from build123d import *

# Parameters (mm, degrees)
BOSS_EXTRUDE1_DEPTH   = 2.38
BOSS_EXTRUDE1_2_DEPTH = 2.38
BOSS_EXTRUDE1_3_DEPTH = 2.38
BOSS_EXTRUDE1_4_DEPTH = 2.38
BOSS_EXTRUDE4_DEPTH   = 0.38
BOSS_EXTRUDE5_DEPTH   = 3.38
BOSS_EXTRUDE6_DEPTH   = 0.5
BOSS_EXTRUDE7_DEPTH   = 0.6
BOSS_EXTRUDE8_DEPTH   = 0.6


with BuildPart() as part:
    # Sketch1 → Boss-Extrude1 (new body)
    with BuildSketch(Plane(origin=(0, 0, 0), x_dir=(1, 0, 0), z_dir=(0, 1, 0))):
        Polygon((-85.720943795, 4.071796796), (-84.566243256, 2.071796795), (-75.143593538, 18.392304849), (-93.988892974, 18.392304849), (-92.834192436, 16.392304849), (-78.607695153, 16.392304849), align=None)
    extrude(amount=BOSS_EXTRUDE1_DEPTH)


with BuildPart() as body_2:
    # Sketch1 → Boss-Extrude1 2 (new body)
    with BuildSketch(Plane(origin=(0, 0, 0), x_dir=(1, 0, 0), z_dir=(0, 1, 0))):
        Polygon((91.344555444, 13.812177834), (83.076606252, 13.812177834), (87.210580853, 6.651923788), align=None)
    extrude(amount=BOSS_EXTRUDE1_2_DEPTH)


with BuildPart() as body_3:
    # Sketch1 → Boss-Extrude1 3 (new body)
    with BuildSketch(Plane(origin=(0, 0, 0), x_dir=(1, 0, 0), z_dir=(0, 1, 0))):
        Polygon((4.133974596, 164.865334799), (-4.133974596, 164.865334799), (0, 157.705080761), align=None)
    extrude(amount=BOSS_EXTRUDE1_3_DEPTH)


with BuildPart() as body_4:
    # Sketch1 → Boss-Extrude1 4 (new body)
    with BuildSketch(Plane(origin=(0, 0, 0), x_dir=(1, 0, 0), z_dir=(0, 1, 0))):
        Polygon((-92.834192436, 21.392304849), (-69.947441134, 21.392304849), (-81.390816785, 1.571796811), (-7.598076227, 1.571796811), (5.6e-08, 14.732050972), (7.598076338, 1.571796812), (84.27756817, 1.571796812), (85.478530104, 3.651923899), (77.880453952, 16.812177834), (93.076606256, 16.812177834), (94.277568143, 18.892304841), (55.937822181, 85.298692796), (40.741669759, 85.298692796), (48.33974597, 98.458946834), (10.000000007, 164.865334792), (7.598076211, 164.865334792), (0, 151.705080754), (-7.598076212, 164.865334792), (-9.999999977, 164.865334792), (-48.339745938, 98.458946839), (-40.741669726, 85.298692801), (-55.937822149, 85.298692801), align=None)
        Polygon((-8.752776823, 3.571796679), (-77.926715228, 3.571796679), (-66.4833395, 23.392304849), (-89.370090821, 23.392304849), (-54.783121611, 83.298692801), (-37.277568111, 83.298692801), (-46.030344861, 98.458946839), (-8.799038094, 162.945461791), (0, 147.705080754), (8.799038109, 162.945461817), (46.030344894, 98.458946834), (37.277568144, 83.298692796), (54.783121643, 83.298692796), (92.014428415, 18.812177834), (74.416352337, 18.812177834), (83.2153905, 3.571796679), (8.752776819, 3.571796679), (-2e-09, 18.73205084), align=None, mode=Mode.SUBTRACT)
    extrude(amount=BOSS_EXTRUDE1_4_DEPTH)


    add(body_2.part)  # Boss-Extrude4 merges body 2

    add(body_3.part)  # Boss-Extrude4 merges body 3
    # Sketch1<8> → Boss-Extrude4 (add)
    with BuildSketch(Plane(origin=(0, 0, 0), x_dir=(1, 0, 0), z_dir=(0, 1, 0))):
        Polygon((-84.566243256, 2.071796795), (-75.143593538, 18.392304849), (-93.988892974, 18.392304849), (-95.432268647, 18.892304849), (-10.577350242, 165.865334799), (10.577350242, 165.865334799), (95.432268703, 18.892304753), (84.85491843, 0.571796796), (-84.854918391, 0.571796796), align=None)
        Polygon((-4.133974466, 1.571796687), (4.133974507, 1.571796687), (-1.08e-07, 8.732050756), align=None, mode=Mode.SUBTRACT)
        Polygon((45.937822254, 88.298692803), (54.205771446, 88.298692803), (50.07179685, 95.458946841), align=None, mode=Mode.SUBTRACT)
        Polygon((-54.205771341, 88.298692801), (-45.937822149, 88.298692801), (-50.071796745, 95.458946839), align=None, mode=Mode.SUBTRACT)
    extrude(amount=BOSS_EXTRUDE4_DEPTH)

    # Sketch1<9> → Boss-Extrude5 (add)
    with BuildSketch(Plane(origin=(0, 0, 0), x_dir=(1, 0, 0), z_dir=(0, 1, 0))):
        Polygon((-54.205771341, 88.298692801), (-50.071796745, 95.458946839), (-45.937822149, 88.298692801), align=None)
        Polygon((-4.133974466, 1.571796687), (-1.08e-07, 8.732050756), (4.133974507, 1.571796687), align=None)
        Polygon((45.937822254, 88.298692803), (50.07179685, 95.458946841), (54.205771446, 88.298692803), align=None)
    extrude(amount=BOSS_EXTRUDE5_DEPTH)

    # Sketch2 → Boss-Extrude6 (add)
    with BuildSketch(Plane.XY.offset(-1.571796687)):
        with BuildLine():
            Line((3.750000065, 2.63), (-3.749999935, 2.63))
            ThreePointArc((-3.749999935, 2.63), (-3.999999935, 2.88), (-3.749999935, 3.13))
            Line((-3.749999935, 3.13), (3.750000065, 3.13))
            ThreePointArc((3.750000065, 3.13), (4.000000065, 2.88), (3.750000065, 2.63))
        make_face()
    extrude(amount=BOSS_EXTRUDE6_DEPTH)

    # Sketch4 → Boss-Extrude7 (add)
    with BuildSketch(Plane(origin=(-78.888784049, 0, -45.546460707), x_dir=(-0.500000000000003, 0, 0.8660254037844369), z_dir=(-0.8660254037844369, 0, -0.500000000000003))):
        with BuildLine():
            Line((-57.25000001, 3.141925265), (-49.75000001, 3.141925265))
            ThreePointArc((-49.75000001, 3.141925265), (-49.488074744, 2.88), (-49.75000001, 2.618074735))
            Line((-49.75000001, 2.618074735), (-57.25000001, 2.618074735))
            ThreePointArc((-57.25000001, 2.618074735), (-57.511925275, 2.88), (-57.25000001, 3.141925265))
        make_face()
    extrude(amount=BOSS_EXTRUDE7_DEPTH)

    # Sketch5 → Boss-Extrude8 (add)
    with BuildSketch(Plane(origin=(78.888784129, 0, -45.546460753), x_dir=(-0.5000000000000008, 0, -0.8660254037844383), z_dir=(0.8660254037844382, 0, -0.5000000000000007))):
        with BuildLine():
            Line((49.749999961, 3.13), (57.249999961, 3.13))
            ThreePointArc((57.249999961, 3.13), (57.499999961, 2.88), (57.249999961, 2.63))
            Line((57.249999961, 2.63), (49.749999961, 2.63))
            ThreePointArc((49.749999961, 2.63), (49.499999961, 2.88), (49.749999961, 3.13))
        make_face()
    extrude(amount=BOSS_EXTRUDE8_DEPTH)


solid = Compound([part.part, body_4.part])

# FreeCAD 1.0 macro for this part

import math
import FreeCAD as App
import Part
import Sketcher
Q = App.Units.Quantity


def add_polygon(sketch, points):
    """Adds a closed chain of lines whose ends are joined by coincident constraints."""
    first, n = sketch.GeometryCount, len(points)
    for a, b in zip(points, points[1:] + points[:1]):
        sketch.addGeometry(Part.LineSegment(App.Vector(*a, 0), App.Vector(*b, 0)), False)
    for i in range(n):
        sketch.addConstraint(Sketcher.Constraint("Coincident", first + i, 2, first + (i + 1) % n, 1))

doc = App.newDocument("Part")
params = doc.addObject("Spreadsheet::Sheet", "Params")
for row, (alias, value) in enumerate([
    ("pad1_length", "2.38 mm"),
    ("pad2_length", "2.38 mm"),
    ("pad3_length", "2.38 mm"),
    ("pad4_length", "2.38 mm"),
    ("pad5_length", "0.38 mm"),
    ("pad6_length", "3.38 mm"),
    ("sketch7_radius", "0.25 mm"),
    ("sketch7_width", "7.5 mm"),
    ("pad7_length", "0.5 mm"),
    ("sketch8_width", "7.5 mm"),
    ("pad8_length", "0.6 mm"),
    ("sketch9_radius", "0.25 mm"),
    ("sketch9_width", "7.5 mm"),
    ("pad9_length", "0.6 mm"),
], start=1):
    params.set(f"A{row}", alias)
    params.set(f"B{row}", "=" + value)
    params.setAlias(f"B{row}", alias)

body = doc.addObject("PartDesign::Body", "Body")

# Sketch on XZ plane
sketch1 = body.newObject("Sketcher::SketchObject", "Sketch")
sketch1.AttachmentSupport = (doc.getObject("XZ_Plane"), [""])
sketch1.MapMode = "FlatFace"
add_polygon(sketch1, [(-85.720944, -4.071797), (-84.566243, -2.071797), (-75.143594, -18.392305), (-93.988893, -18.392305), (-92.834192, -16.392305), (-78.607695, -16.392305)])  # lines 0-5
sketch1.addConstraint(Sketcher.Constraint("Horizontal", 2))
sketch1.addConstraint(Sketcher.Constraint("Horizontal", 4))
sketch1.addConstraint(Sketcher.Constraint("Parallel", 0, 3))
sketch1.addConstraint(Sketcher.Constraint("Parallel", 1, 5))
sketch1.addConstraint(Sketcher.Constraint("Equal", 0, 3))
sketch1.addConstraint(Sketcher.Constraint("Angle", 0, Q("60 deg")))
sketch1.addConstraint(Sketcher.Constraint("Angle", 1, Q("-60 deg")))
sketch1.addConstraint(Sketcher.Constraint("DistanceY", 2, 2, 3, 2, Q("2 mm")))
sketch1.addConstraint(Sketcher.Constraint("DistanceX", 2, 2, 2, 1, Q("18.845299 mm")))
sketch1.addConstraint(Sketcher.Constraint("Distance", 1, Q("18.845299 mm")))
sketch1.addConstraint(Sketcher.Constraint("DistanceX", 0, 2, -1, 1, Q("84.566243 mm")))
sketch1.addConstraint(Sketcher.Constraint("DistanceY", 0, 2, -1, 1, Q("2.071797 mm")))
pad1 = body.newObject("PartDesign::Pad", "Pad")
pad1.Profile = sketch1
pad1.setExpression("Length", "Params.pad1_length")
pad1.Reversed = True
body2 = doc.addObject("PartDesign::Body", "Body001")

# Sketch on XZ plane
sketch2 = body2.newObject("Sketcher::SketchObject", "Sketch001")
sketch2.AttachmentSupport = (doc.getObject("XZ_Plane001"), [""])
sketch2.MapMode = "FlatFace"
add_polygon(sketch2, [(91.344555, -13.812178), (83.076606, -13.812178), (87.210581, -6.651924)])  # lines 0-2
sketch2.addConstraint(Sketcher.Constraint("Horizontal", 0))
sketch2.addConstraint(Sketcher.Constraint("Equal", 1, 2))
sketch2.addConstraint(Sketcher.Constraint("Angle", 1, Q("60 deg")))
sketch2.addConstraint(Sketcher.Constraint("DistanceX", 0, 2, 0, 1, Q("8.267949 mm")))
sketch2.addConstraint(Sketcher.Constraint("DistanceX", -1, 1, 1, 2, Q("87.210581 mm")))
sketch2.addConstraint(Sketcher.Constraint("DistanceY", 0, 2, -1, 1, Q("13.812178 mm")))
pad2 = body2.newObject("PartDesign::Pad", "Pad001")
pad2.Profile = sketch2
pad2.setExpression("Length", "Params.pad2_length")
pad2.Reversed = True
body3 = doc.addObject("PartDesign::Body", "Body002")

# Sketch on XZ plane
sketch3 = body3.newObject("Sketcher::SketchObject", "Sketch002")
sketch3.AttachmentSupport = (doc.getObject("XZ_Plane002"), [""])
sketch3.MapMode = "FlatFace"
add_polygon(sketch3, [(4.133975, -164.865335), (-4.133975, -164.865335), (0, -157.705081)])  # lines 0-2
sketch3.addConstraint(Sketcher.Constraint("Horizontal", 0))
sketch3.addConstraint(Sketcher.Constraint("PointOnObject", 1, 2, -2))
sketch3.addConstraint(Sketcher.Constraint("Equal", 1, 2))
sketch3.addConstraint(Sketcher.Constraint("Angle", 1, Q("60 deg")))
sketch3.addConstraint(Sketcher.Constraint("DistanceX", 0, 2, 0, 1, Q("8.267949 mm")))
sketch3.addConstraint(Sketcher.Constraint("DistanceY", 1, 2, -1, 1, Q("157.705081 mm")))
pad3 = body3.newObject("PartDesign::Pad", "Pad002")
pad3.Profile = sketch3
pad3.setExpression("Length", "Params.pad3_length")
pad3.Reversed = True
body4 = doc.addObject("PartDesign::Body", "Body003")
body4.AllowCompound = True

# Sketch on XZ plane
sketch4 = body4.newObject("Sketcher::SketchObject", "Sketch003")
sketch4.AttachmentSupport = (doc.getObject("XZ_Plane003"), [""])
sketch4.MapMode = "FlatFace"
add_polygon(sketch4, [(-92.834192, -21.392305), (-69.947441, -21.392305), (-81.390817, -1.571797), (-7.598076, -1.571797), (0, -14.732051), (7.598076, -1.571797), (84.277568, -1.571797), (85.47853, -3.651924), (77.880454, -16.812178), (93.076606, -16.812178), (94.277568, -18.892305), (55.937822, -85.298693), (40.74167, -85.298693), (48.339746, -98.458947), (10, -164.865335), (7.598076, -164.865335), (0, -151.705081), (-7.598076, -164.865335), (-10, -164.865335), (-48.339746, -98.458947), (-40.74167, -85.298693), (-55.937822, -85.298693)])  # lines 0-21
add_polygon(sketch4, [(0, -18.732051), (-8.752777, -3.571797), (-77.926715, -3.571797), (-66.483339, -23.392305), (-89.370091, -23.392305), (-54.783122, -83.298693), (-37.277568, -83.298693), (-46.030345, -98.458947), (-8.799038, -162.945462), (0, -147.705081), (8.799038, -162.945462), (46.030345, -98.458947), (37.277568, -83.298693), (54.783122, -83.298693), (92.014428, -18.812178), (74.416352, -18.812178), (83.21539, -3.571797), (8.752777, -3.571797)])  # lines 22-39
sketch4.addConstraint(Sketcher.Constraint("Horizontal", 0))
sketch4.addConstraint(Sketcher.Constraint("Horizontal", 2))
sketch4.addConstraint(Sketcher.Constraint("Horizontal", 5))
sketch4.addConstraint(Sketcher.Constraint("Horizontal", 8))
sketch4.addConstraint(Sketcher.Constraint("Horizontal", 11))
sketch4.addConstraint(Sketcher.Constraint("Horizontal", 14))
sketch4.addConstraint(Sketcher.Constraint("Horizontal", 17))
sketch4.addConstraint(Sketcher.Constraint("Horizontal", 20))
sketch4.addConstraint(Sketcher.Constraint("Horizontal", 23))
sketch4.addConstraint(Sketcher.Constraint("Horizontal", 25))
sketch4.addConstraint(Sketcher.Constraint("Horizontal", 27))
sketch4.addConstraint(Sketcher.Constraint("Horizontal", 34))
sketch4.addConstraint(Sketcher.Constraint("Horizontal", 36))
sketch4.addConstraint(Sketcher.Constraint("Horizontal", 38))
sketch4.addConstraint(Sketcher.Constraint("Symmetric", 2, 2, 4, 2, -2))
sketch4.addConstraint(Sketcher.Constraint("Symmetric", 14, 2, 16, 2, -2))
sketch4.addConstraint(Sketcher.Constraint("Symmetric", 12, 2, 18, 2, -2))
sketch4.addConstraint(Sketcher.Constraint("Symmetric", 11, 2, 19, 2, -2))
sketch4.addConstraint(Sketcher.Constraint("Symmetric", 29, 2, 31, 2, -2))
sketch4.addConstraint(Sketcher.Constraint("Symmetric", 28, 2, 32, 2, -2))
sketch4.addConstraint(Sketcher.Constraint("Symmetric", 27, 2, 33, 2, -2))
sketch4.addConstraint(Sketcher.Constraint("Symmetric", 22, 2, 38, 2, -2))
sketch4.addConstraint(Sketcher.Constraint("PointOnObject", 3, 2, -2))
sketch4.addConstraint(Sketcher.Constraint("PointOnObject", 15, 2, -2))
sketch4.addConstraint(Sketcher.Constraint("PointOnObject", 30, 2, -2))
sketch4.addConstraint(Sketcher.Constraint("PointOnObject", 39, 2, -2))
sketch4.addConstraint(Sketcher.Constraint("Parallel", 1, 3))
sketch4.addConstraint(Sketcher.Constraint("Parallel", 3, 6))
sketch4.addConstraint(Sketcher.Constraint("Parallel", 4, 7))
sketch4.addConstraint(Sketcher.Constraint("Parallel", 6, 9))
sketch4.addConstraint(Sketcher.Constraint("Parallel", 7, 10))
sketch4.addConstraint(Sketcher.Constraint("Parallel", 9, 12))
sketch4.addConstraint(Sketcher.Constraint("Parallel", 10, 13))
sketch4.addConstraint(Sketcher.Constraint("Parallel", 12, 15))
sketch4.addConstraint(Sketcher.Constraint("Parallel", 15, 18))
sketch4.addConstraint(Sketcher.Constraint("Parallel", 18, 21))
sketch4.addConstraint(Sketcher.Constraint("Parallel", 21, 22))
sketch4.addConstraint(Sketcher.Constraint("Parallel", 22, 24))
sketch4.addConstraint(Sketcher.Constraint("Parallel", 24, 26))
sketch4.addConstraint(Sketcher.Constraint("Parallel", 19, 28))
sketch4.addConstraint(Sketcher.Constraint("Parallel", 26, 29))
sketch4.addConstraint(Sketcher.Constraint("Parallel", 28, 30))
sketch4.addConstraint(Sketcher.Constraint("Parallel", 32, 35))
sketch4.addConstraint(Sketcher.Constraint("Parallel", 35, 37))
sketch4.addConstraint(Sketcher.Constraint("Horizontal", 18, 2, 28, 2))
sketch4.addConstraint(Sketcher.Constraint("Vertical", 4, 2, 14, 2))
sketch4.addConstraint(Sketcher.Constraint("Equal", 8, 11))
sketch4.addConstraint(Sketcher.Constraint("Equal", 11, 20))
sketch4.addConstraint(Sketcher.Constraint("Equal", 0, 25))
sketch4.addConstraint(Sketcher.Constraint("Equal", 27, 34))
sketch4.addConstraint(Sketcher.Constraint("Equal", 4, 7))
sketch4.addConstraint(Sketcher.Constraint("Equal", 6, 9))
sketch4.addConstraint(Sketcher.Constraint("Equal", 7, 12))
sketch4.addConstraint(Sketcher.Constraint("Equal", 10, 13))
sketch4.addConstraint(Sketcher.Constraint("Equal", 1, 24))
sketch4.addConstraint(Sketcher.Constraint("Equal", 22, 28))
sketch4.addConstraint(Sketcher.Constraint("Equal", 32, 35))
sketch4.addConstraint(Sketcher.Constraint("Equal", 31, 37))
sketch4.addConstraint(Sketcher.Constraint("Angle", 1, Q("120 deg")))
sketch4.addConstraint(Sketcher.Constraint("DistanceX", -1, 1, 13, 2, Q("10 mm")))
sketch4.addConstraint(Sketcher.Constraint("DistanceX", 5, 2, 9, 2, Q("10 mm")))
sketch4.addConstraint(Sketcher.Constraint("DistanceY", 22, 2, 2, 2, Q("2 mm")))
sketch4.addConstraint(Sketcher.Constraint("DistanceY", 20, 2, 26, 2, Q("2 mm")))
sketch4.addConstraint(Sketcher.Constraint("DistanceY", 15, 2, 30, 2, Q("4 mm")))
sketch4.addConstraint(Sketcher.Constraint("DistanceX", 0, 1, 0, 2, Q("22.886751 mm")))
sketch4.addConstraint(Sketcher.Constraint("DistanceX", 2, 1, 2, 2, Q("73.792741 mm")))
sketch4.addConstraint(Sketcher.Constraint("DistanceX", 5, 1, 5, 2, Q("76.679492 mm")))
sketch4.addConstraint(Sketcher.Constraint("DistanceX", 23, 2, 23, 1, Q("69.173938 mm")))
sketch4.addConstraint(Sketcher.Constraint("DistanceX", 11, 2, 9, 2, Q("53.535898 mm")))
sketch4.addConstraint(Sketcher.Constraint("DistanceX", 36, 2, 7, 2, Q("3.464102 mm")))
sketch4.addConstraint(Sketcher.Constraint("Distance", 1, Q("22.886751 mm")))
sketch4.addConstraint(Sketcher.Constraint("DistanceY", 3, 2, -1, 1, Q("14.732051 mm")))
pad4 = body4.newObject("PartDesign::Pad", "Pad003")
pad4.Profile = sketch4
pad4.setExpression("Length", "Params.pad4_length")
pad4.Reversed = True
doc.recompute()

boolean = body4.newObject("PartDesign::Boolean", "Boolean")
boolean.Type = "Fuse"
boolean.addObjects([body2])
doc.recompute()

boolean2 = body4.newObject("PartDesign::Boolean", "Boolean001")
boolean2.Type = "Fuse"
boolean2.addObjects([body3])

# Sketch on XZ plane
sketch5 = body4.newObject("Sketcher::SketchObject", "Sketch004")
sketch5.AttachmentSupport = (doc.getObject("XZ_Plane003"), [""])
sketch5.MapMode = "FlatFace"
add_polygon(sketch5, [(-75.143594, -18.392305), (-84.566243, -2.071797), (-84.854918, -0.571797), (84.854918, -0.571797), (95.432269, -18.892305), (10.57735, -165.865335), (-10.57735, -165.865335), (-95.432269, -18.892305), (-93.988893, -18.392305)])  # lines 0-8
add_polygon(sketch5, [(-4.133974, -1.571797), (0, -8.732051), (4.133975, -1.571797)])  # lines 9-11
add_polygon(sketch5, [(45.937822, -88.298693), (50.071797, -95.458947), (54.205771, -88.298693)])  # lines 12-14
add_polygon(sketch5, [(-54.205771, -88.298693), (-50.071797, -95.458947), (-45.937822, -88.298693)])  # lines 15-17
sketch5.addConstraint(Sketcher.Constraint("Horizontal", 2))
sketch5.addConstraint(Sketcher.Constraint("Horizontal", 5))
sketch5.addConstraint(Sketcher.Constraint("Horizontal", 8))
sketch5.addConstraint(Sketcher.Constraint("Horizontal", 11))
sketch5.addConstraint(Sketcher.Constraint("Horizontal", 14))
sketch5.addConstraint(Sketcher.Constraint("Horizontal", 17))
sketch5.addConstraint(Sketcher.Constraint("Symmetric", 3, 2, 6, 2, -2))
sketch5.addConstraint(Sketcher.Constraint("Symmetric", 12, 2, 15, 2, -2))
sketch5.addConstraint(Sketcher.Constraint("Symmetric", 14, 2, 16, 2, -2))
sketch5.addConstraint(Sketcher.Constraint("PointOnObject", 9, 2, -2))
sketch5.addConstraint(Sketcher.Constraint("Parallel", 0, 3))
sketch5.addConstraint(Sketcher.Constraint("Parallel", 3, 6))
sketch5.addConstraint(Sketcher.Constraint("Parallel", 6, 9))
sketch5.addConstraint(Sketcher.Constraint("Parallel", 4, 10))
sketch5.addConstraint(Sketcher.Constraint("Parallel", 9, 12))
sketch5.addConstraint(Sketcher.Constraint("Parallel", 10, 13))
sketch5.addConstraint(Sketcher.Constraint("Parallel", 12, 15))
sketch5.addConstraint(Sketcher.Constraint("Parallel", 13, 16))
sketch5.addConstraint(Sketcher.Constraint("Equal", 11, 14))
sketch5.addConstraint(Sketcher.Constraint("Equal", 1, 7))
sketch5.addConstraint(Sketcher.Constraint("Angle", 0, Q("120 deg")))
sketch5.addConstraint(Sketcher.Constraint("DistanceY", 10, 2, 2, 2, Q("1 mm")))
sketch5.addConstraint(Sketcher.Constraint("DistanceY", 0, 2, 1, 2, Q("1.5 mm")))
sketch5.addConstraint(Sketcher.Constraint("DistanceY", 6, 2, 7, 2, Q("0.5 mm")))
sketch5.addConstraint(Sketcher.Constraint("DistanceX", 5, 2, 5, 1, Q("21.1547 mm")))
sketch5.addConstraint(Sketcher.Constraint("DistanceX", 8, 1, 8, 2, Q("18.845299 mm")))
sketch5.addConstraint(Sketcher.Constraint("Distance", 0, Q("18.845299 mm")))
sketch5.addConstraint(Sketcher.Constraint("DistanceX", 11, 2, 11, 1, Q("8.267949 mm")))
sketch5.addConstraint(Sketcher.Constraint("DistanceX", 2, 1, 2, 2, Q("169.709837 mm")))
sketch5.addConstraint(Sketcher.Constraint("DistanceX", 1, 2, -1, 1, Q("84.854918 mm")))
sketch5.addConstraint(Sketcher.Constraint("DistanceY", 9, 2, -1, 1, Q("8.732051 mm")))
sketch5.addConstraint(Sketcher.Constraint("DistanceX", -1, 1, 13, 2, Q("54.205771 mm")))
sketch5.addConstraint(Sketcher.Constraint("DistanceY", 12, 2, 2, 2, Q("94.88715 mm")))
pad5 = body4.newObject("PartDesign::Pad", "Pad004")
pad5.Profile = sketch5
pad5.setExpression("Length", "Params.pad5_length")
pad5.Reversed = True

# Sketch on XZ plane
sketch6 = body4.newObject("Sketcher::SketchObject", "Sketch005")
sketch6.AttachmentSupport = (doc.getObject("XZ_Plane003"), [""])
sketch6.MapMode = "FlatFace"
add_polygon(sketch6, [(-50.071797, -95.458947), (-54.205771, -88.298693), (-45.937822, -88.298693)])  # lines 0-2
add_polygon(sketch6, [(0, -8.732051), (-4.133974, -1.571797), (4.133975, -1.571797)])  # lines 3-5
add_polygon(sketch6, [(50.071797, -95.458947), (45.937822, -88.298693), (54.205771, -88.298693)])  # lines 6-8
sketch6.addConstraint(Sketcher.Constraint("Horizontal", 1))
sketch6.addConstraint(Sketcher.Constraint("Horizontal", 4))
sketch6.addConstraint(Sketcher.Constraint("Horizontal", 7))
sketch6.addConstraint(Sketcher.Constraint("Symmetric", 1, 2, 6, 2, -2))
sketch6.addConstraint(Sketcher.Constraint("Symmetric", 2, 2, 8, 2, -2))
sketch6.addConstraint(Sketcher.Constraint("PointOnObject", 5, 2, -2))
sketch6.addConstraint(Sketcher.Constraint("Parallel", 0, 3))
sketch6.addConstraint(Sketcher.Constraint("Parallel", 2, 5))
sketch6.addConstraint(Sketcher.Constraint("Parallel", 3, 6))
sketch6.addConstraint(Sketcher.Constraint("Parallel", 5, 8))
sketch6.addConstraint(Sketcher.Constraint("Equal", 1, 4))
sketch6.addConstraint(Sketcher.Constraint("Angle", 0, Q("120 deg")))
sketch6.addConstraint(Sketcher.Constraint("DistanceX", 1, 1, 1, 2, Q("8.267949 mm")))
sketch6.addConstraint(Sketcher.Constraint("DistanceX", 0, 2, -1, 1, Q("54.205771 mm")))
sketch6.addConstraint(Sketcher.Constraint("DistanceY", 5, 2, -1, 1, Q("8.732051 mm")))
sketch6.addConstraint(Sketcher.Constraint("DistanceY", 2, 2, 3, 2, Q("93.88715 mm")))
pad6 = body4.newObject("PartDesign::Pad", "Pad005")
pad6.Profile = sketch6
pad6.setExpression("Length", "Params.pad6_length")
pad6.Reversed = True

# Sketch on XY plane
sketch7 = body4.newObject("Sketcher::SketchObject", "Sketch006")
sketch7.AttachmentSupport = (doc.getObject("XY_Plane003"), [""])
sketch7.MapMode = "FlatFace"
sketch7.AttachmentOffset = App.Placement(App.Vector(0, 0, -1.571797), App.Rotation())
sketch7.addGeometry(Part.LineSegment(App.Vector(-3.75, 2.63, 0), App.Vector(3.75, 2.63, 0)), False)
sketch7.addGeometry(Part.ArcOfCircle(Part.Circle(App.Vector(3.75, 2.88, 0), App.Vector(0, 0, 1), 0.25), math.radians(-90), math.radians(90)), False)
sketch7.addGeometry(Part.LineSegment(App.Vector(3.75, 3.13, 0), App.Vector(-3.75, 3.13, 0)), False)
sketch7.addGeometry(Part.ArcOfCircle(Part.Circle(App.Vector(-3.75, 2.88, 0), App.Vector(0, 0, 1), 0.25), math.radians(90), math.radians(270)), False)
sketch7.addConstraint(Sketcher.Constraint("Tangent", 0, 2, 1, 1))
sketch7.addConstraint(Sketcher.Constraint("Tangent", 1, 2, 2, 1))
sketch7.addConstraint(Sketcher.Constraint("Tangent", 2, 2, 3, 1))
sketch7.addConstraint(Sketcher.Constraint("Tangent", 3, 2, 0, 1))
sketch7.addConstraint(Sketcher.Constraint("Horizontal", 0))
sketch7.addConstraint(Sketcher.Constraint("Horizontal", 2))
sketch7.addConstraint(Sketcher.Constraint("Radius", 1, Q("0.25 mm")))
sketch7.addConstraint(Sketcher.Constraint("DistanceX", 0, 1, 0, 2, Q("7.5 mm")))
sketch7.addConstraint(Sketcher.Constraint("DistanceX", -1, 1, 1, 3, Q("3.75 mm")))
sketch7.addConstraint(Sketcher.Constraint("DistanceY", -1, 1, 1, 3, Q("2.88 mm")))
sketch7.setExpression("Constraints[6]", "Params.sketch7_radius")
sketch7.setExpression("Constraints[7]", "Params.sketch7_width")
pad7 = body4.newObject("PartDesign::Pad", "Pad006")
pad7.Profile = sketch7
pad7.setExpression("Length", "Params.pad7_length")

# Sketch on an angled plane
sketch8 = body4.newObject("Sketcher::SketchObject", "Sketch007")
sketch8.Placement = App.Placement(App.Vector(-78.888784, 0, -45.546461), App.Rotation(App.Vector(-0.5, 0, 0.866025404), App.Vector(0, 1, 0), App.Vector(-0.866025404, 0, -0.5), "ZXY"))
sketch8.addGeometry(Part.LineSegment(App.Vector(-49.75, 3.141925, 0), App.Vector(-57.25, 3.141925, 0)), False)
sketch8.addGeometry(Part.ArcOfCircle(Part.Circle(App.Vector(-57.25, 2.88, 0), App.Vector(0, 0, 1), 0.261925), math.radians(90), math.radians(270)), False)
sketch8.addGeometry(Part.LineSegment(App.Vector(-57.25, 2.618075, 0), App.Vector(-49.75, 2.618075, 0)), False)
sketch8.addGeometry(Part.ArcOfCircle(Part.Circle(App.Vector(-49.75, 2.88, 0), App.Vector(0, 0, 1), 0.261925), math.radians(-90), math.radians(90)), False)
sketch8.addConstraint(Sketcher.Constraint("Tangent", 0, 2, 1, 1))
sketch8.addConstraint(Sketcher.Constraint("Tangent", 1, 2, 2, 1))
sketch8.addConstraint(Sketcher.Constraint("Tangent", 2, 2, 3, 1))
sketch8.addConstraint(Sketcher.Constraint("Tangent", 3, 2, 0, 1))
sketch8.addConstraint(Sketcher.Constraint("Horizontal", 0))
sketch8.addConstraint(Sketcher.Constraint("Horizontal", 2))
sketch8.addConstraint(Sketcher.Constraint("DistanceX", 0, 2, 0, 1, Q("7.5 mm")))
sketch8.addConstraint(Sketcher.Constraint("DistanceX", 1, 3, -1, 1, Q("57.25 mm")))
sketch8.addConstraint(Sketcher.Constraint("DistanceY", -1, 1, 1, 3, Q("2.88 mm")))
sketch8.addConstraint(Sketcher.Constraint("Radius", 1, Q("0.261925 mm")))
sketch8.setExpression("Constraints[6]", "Params.sketch8_width")
pad8 = body4.newObject("PartDesign::Pad", "Pad007")
pad8.Profile = sketch8
pad8.setExpression("Length", "Params.pad8_length")

# Sketch on an angled plane
sketch9 = body4.newObject("Sketcher::SketchObject", "Sketch008")
sketch9.Placement = App.Placement(App.Vector(78.888784, 0, -45.546461), App.Rotation(App.Vector(-0.5, 0, -0.866025404), App.Vector(0, 1, 0), App.Vector(0.866025404, 0, -0.5), "ZXY"))
sketch9.addGeometry(Part.LineSegment(App.Vector(57.25, 3.13, 0), App.Vector(49.75, 3.13, 0)), False)
sketch9.addGeometry(Part.ArcOfCircle(Part.Circle(App.Vector(49.75, 2.88, 0), App.Vector(0, 0, 1), 0.25), math.radians(90), math.radians(270)), False)
sketch9.addGeometry(Part.LineSegment(App.Vector(49.75, 2.63, 0), App.Vector(57.25, 2.63, 0)), False)
sketch9.addGeometry(Part.ArcOfCircle(Part.Circle(App.Vector(57.25, 2.88, 0), App.Vector(0, 0, 1), 0.25), math.radians(-90), math.radians(90)), False)
sketch9.addConstraint(Sketcher.Constraint("Tangent", 0, 2, 1, 1))
sketch9.addConstraint(Sketcher.Constraint("Tangent", 1, 2, 2, 1))
sketch9.addConstraint(Sketcher.Constraint("Tangent", 2, 2, 3, 1))
sketch9.addConstraint(Sketcher.Constraint("Tangent", 3, 2, 0, 1))
sketch9.addConstraint(Sketcher.Constraint("Horizontal", 0))
sketch9.addConstraint(Sketcher.Constraint("Horizontal", 2))
sketch9.addConstraint(Sketcher.Constraint("Radius", 1, Q("0.25 mm")))
sketch9.addConstraint(Sketcher.Constraint("DistanceX", 0, 2, 0, 1, Q("7.5 mm")))
sketch9.addConstraint(Sketcher.Constraint("DistanceX", -1, 1, 1, 3, Q("49.75 mm")))
sketch9.addConstraint(Sketcher.Constraint("DistanceY", -1, 1, 1, 3, Q("2.88 mm")))
sketch9.setExpression("Constraints[6]", "Params.sketch9_radius")
sketch9.setExpression("Constraints[7]", "Params.sketch9_width")
pad9 = body4.newObject("PartDesign::Pad", "Pad008")
pad9.Profile = sketch9
pad9.setExpression("Length", "Params.pad9_length")

doc.recompute()
